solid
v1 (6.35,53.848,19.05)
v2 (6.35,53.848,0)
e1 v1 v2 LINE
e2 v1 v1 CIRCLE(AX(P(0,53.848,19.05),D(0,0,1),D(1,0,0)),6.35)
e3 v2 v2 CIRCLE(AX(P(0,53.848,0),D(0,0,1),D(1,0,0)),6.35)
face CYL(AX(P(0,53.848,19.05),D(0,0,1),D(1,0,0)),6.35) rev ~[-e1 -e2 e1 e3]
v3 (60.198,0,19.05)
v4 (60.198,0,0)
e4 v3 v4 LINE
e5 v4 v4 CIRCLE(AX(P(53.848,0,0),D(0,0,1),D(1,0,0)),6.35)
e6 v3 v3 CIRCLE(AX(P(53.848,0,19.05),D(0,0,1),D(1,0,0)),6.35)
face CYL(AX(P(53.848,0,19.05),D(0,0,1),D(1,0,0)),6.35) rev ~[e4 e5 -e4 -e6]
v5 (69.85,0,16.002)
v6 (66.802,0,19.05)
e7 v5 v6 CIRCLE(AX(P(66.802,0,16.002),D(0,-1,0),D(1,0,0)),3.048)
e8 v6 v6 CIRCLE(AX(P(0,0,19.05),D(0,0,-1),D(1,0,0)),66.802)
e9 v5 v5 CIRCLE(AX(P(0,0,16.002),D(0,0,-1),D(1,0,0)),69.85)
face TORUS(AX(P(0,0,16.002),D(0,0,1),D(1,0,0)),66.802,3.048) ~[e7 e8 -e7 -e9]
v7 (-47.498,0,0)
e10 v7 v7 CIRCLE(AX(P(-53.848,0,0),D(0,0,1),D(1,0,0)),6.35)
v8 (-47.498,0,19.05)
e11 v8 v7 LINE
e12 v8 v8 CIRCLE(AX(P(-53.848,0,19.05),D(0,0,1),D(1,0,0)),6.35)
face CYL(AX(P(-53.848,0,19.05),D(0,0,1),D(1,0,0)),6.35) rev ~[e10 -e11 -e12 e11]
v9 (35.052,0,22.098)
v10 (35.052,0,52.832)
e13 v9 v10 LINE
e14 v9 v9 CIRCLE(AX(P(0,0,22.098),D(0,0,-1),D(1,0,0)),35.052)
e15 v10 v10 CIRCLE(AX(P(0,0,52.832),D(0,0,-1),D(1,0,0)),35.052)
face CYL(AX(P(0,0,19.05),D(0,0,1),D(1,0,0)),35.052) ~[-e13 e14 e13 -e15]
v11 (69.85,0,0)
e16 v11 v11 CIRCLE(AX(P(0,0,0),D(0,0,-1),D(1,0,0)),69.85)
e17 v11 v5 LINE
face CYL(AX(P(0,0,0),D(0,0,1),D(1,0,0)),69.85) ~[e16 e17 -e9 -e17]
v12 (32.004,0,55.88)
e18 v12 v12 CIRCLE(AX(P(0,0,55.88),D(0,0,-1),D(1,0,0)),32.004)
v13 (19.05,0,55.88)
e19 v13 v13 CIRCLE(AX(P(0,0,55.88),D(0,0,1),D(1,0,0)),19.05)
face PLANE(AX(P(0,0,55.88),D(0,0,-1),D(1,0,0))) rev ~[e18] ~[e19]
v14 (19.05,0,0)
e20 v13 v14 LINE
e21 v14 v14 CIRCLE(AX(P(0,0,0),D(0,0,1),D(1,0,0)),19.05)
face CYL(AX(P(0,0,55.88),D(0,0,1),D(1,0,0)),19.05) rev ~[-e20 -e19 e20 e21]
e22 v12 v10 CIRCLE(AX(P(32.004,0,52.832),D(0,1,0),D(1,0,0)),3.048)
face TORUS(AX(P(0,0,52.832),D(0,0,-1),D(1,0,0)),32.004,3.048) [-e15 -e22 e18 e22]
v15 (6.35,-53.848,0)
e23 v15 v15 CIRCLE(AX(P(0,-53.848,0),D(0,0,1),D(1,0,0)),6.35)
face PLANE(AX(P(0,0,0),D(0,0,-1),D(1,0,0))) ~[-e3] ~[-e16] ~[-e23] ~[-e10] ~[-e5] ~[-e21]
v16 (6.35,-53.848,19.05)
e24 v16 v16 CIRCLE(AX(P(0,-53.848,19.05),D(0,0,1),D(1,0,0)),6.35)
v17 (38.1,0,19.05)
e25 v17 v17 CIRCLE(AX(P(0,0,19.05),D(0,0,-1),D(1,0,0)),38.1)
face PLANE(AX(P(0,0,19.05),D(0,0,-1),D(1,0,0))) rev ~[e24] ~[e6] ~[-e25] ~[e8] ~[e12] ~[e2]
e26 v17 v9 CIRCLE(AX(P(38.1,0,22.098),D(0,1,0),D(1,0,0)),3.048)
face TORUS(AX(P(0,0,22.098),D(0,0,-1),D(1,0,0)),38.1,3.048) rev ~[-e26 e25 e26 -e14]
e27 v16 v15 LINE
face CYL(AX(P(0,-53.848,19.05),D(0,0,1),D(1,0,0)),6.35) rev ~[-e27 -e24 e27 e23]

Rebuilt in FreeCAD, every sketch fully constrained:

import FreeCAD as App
import Part
import Sketcher
from FreeCAD import Vector
Q = App.Units.Quantity


def edges_at(feature, points):
    """Names of the edges that pass closest to the given points."""
    edges = feature.Shape.Edges
    near = lambda p: min(range(len(edges)), key=lambda i: edges[i].distToShape(Part.Vertex(*p))[0])
    return sorted({f"Edge{near(p) + 1}" for p in points})


def add_polygon(sketch, points):
    """Adds a closed chain of lines whose ends are joined by coincident constraints."""
    first, n = sketch.GeometryCount, len(points)
    for a, b in zip(points, points[1:] + points[:1]):
        sketch.addGeometry(Part.LineSegment(App.Vector(*a, 0), App.Vector(*b, 0)), False)
    for i in range(n):
        sketch.addConstraint(Sketcher.Constraint("Coincident", first + i, 2, first + (i + 1) % n, 1))

doc = App.newDocument("Part")
body = doc.addObject("PartDesign::Body", "Body")

sketch1 = body.newObject("Sketcher::SketchObject", "Sketch")
sketch1.AttachmentSupport = (doc.getObject("XZ_Plane"), [""])
sketch1.MapMode = "FlatFace"
add_polygon(sketch1, [(0, 55.88), (0, 0), (69.85, 0), (69.85, 19.05), (35.052, 19.05), (35.052, 55.88)])
sketch1.addConstraint([
    Sketcher.Constraint("Vertical", 0),
    Sketcher.Constraint("Horizontal", 1),
    Sketcher.Constraint("Vertical", 2),
    Sketcher.Constraint("Horizontal", 3),
    Sketcher.Constraint("Vertical", 4),
    Sketcher.Constraint("Horizontal", 5),
    Sketcher.Constraint("Coincident", 0, 2, -1, 1),
    Sketcher.Constraint("DistanceY", 0, 2, 0, 1, Q("2.2 in")),
    Sketcher.Constraint("DistanceX", 1, 1, 1, 2, Q("2.75 in")),
    Sketcher.Constraint("DistanceX", 3, 2, 3, 1, Q("1.37 in")),
    Sketcher.Constraint("DistanceY", 2, 1, 2, 2, Q("0.75 in")),
])
revolution = body.newObject("PartDesign::Revolution", "Revolution")
revolution.Profile = sketch1
revolution.ReferenceAxis = (sketch1, ["V_Axis"])
revolution.Angle = 360

sketch2 = body.newObject("Sketcher::SketchObject", "Sketch001")
sketch2.AttachmentSupport = (doc.getObject("XY_Plane"), [""])
sketch2.MapMode = "FlatFace"
sketch2.AttachmentOffset = App.Placement(Vector(0, 0, 2.2 * 25.4), App.Rotation())
sketch2.addGeometry(Part.Circle(Vector(0, 0, 0), Vector(0, 0, 1), 19.05), False)
sketch2.addConstraint([
    Sketcher.Constraint("Coincident", 0, 3, -1, 1),
    Sketcher.Constraint("Diameter", 0, Q("1.5 in")),
])
pocket1 = body.newObject("PartDesign::Pocket", "Pocket")
pocket1.Profile = sketch2
pocket1.Type = "ThroughAll"
doc.recompute()

fillet = body.newObject("PartDesign::Fillet", "Fillet")
fillet.Base = (pocket1, edges_at(pocket1, [(-35.052, 0, 55.88), (-69.85, 0, 19.05), (-35.052, 0, 19.05)]))
fillet.Radius = Q("0.12 in")

sketch3 = body.newObject("Sketcher::SketchObject", "Sketch002")
sketch3.AttachmentSupport = (doc.getObject("XY_Plane"), [""])
sketch3.MapMode = "FlatFace"
sketch3.AttachmentOffset = App.Placement(Vector(0, 0, 0.75 * 25.4), App.Rotation())
sketch3.addGeometry([
    Part.Circle(Vector(-53.848, 0, 0), Vector(0, 0, 1), 6.35),
    Part.Circle(Vector(0, 53.848, 0), Vector(0, 0, 1), 6.35),
    Part.Circle(Vector(53.848, 0, 0), Vector(0, 0, 1), 6.35),
    Part.Circle(Vector(0, -53.848, 0), Vector(0, 0, 1), 6.35),
], False)
sketch3.addConstraint([
    Sketcher.Constraint("Equal", 0, 1),
    Sketcher.Constraint("Equal", 1, 2),
    Sketcher.Constraint("Equal", 2, 3),
    Sketcher.Constraint("Symmetric", 0, 3, 2, 3, -1, 1),
    Sketcher.Constraint("Symmetric", 1, 3, 3, 3, -1, 1),
    Sketcher.Constraint("PointOnObject", 0, 3, -1),
    Sketcher.Constraint("PointOnObject", 1, 3, -2),
    Sketcher.Constraint("Diameter", 0, Q("0.5 in")),
    Sketcher.Constraint("DistanceX", 0, 3, -1, 1, Q("2.12 in")),
    Sketcher.Constraint("DistanceY", -1, 1, 1, 3, Q("2.12 in")),
])
pocket2 = body.newObject("PartDesign::Pocket", "Pocket001")
pocket2.Profile = sketch3
pocket2.Type = "ThroughAll"

doc.recompute()
